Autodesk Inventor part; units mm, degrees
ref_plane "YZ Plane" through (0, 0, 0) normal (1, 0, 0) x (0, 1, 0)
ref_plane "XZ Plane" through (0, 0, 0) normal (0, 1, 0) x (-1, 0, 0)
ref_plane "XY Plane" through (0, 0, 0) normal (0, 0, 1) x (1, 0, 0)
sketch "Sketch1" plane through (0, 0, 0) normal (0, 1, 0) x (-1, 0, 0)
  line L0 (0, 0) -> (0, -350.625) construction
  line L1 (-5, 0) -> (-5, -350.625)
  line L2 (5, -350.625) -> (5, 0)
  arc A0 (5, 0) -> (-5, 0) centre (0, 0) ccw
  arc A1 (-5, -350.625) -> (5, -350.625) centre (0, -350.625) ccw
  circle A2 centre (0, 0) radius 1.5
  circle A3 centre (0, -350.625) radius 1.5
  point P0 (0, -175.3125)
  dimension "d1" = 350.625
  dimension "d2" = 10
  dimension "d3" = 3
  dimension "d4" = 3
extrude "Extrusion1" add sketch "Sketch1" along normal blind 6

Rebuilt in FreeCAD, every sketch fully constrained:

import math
import FreeCAD as App
import Part
import Sketcher

V = App.Vector

doc = App.newDocument("Part")
body = doc.addObject("PartDesign::Body", "Body")

# Sketch on XZ plane
sketch1 = doc.addObject("Sketcher::SketchObject", "Sketch")
body.addObject(sketch1)
sketch1.AttachmentSupport = (doc.XZ_Plane, [""])
sketch1.MapMode = "FlatFace"
sketch1.addGeometry([
    Part.ArcOfCircle(Part.Circle(V(0, 0, 0), V(0, 0, 1), 5), math.radians(0), math.radians(180)),  # 0
    Part.LineSegment(V(5, 0, 0), V(5, -350.625, 0)),  # 1
    Part.ArcOfCircle(Part.Circle(V(0, -350.625, 0), V(0, 0, 1), 5), math.radians(180), math.radians(360)),  # 2
    Part.LineSegment(V(-5, -350.625, 0), V(-5, 0, 0)),  # 3
    Part.Circle(V(0, -350.625, 0), V(0, 0, 1), 1.5),  # 4
    Part.Circle(V(0, 0, 0), V(0, 0, 1), 1.5),  # 5
], False)
sketch1.addConstraint([
    Sketcher.Constraint("Tangent", 0, 1, 1, 1),
    Sketcher.Constraint("Tangent", 1, 2, 2, 2),
    Sketcher.Constraint("Tangent", 2, 1, 3, 1),
    Sketcher.Constraint("Tangent", 3, 2, 0, 2),
    Sketcher.Constraint("Vertical", 1),
    Sketcher.Constraint("Vertical", 3),
    Sketcher.Constraint("Coincident", 0, 3, -1, 1),
    Sketcher.Constraint("Coincident", 5, 3, -1, 1),
    Sketcher.Constraint("Coincident", 4, 3, 2, 3),
    Sketcher.Constraint("Equal", 4, 5),
    Sketcher.Constraint("Diameter", 4, 3.0),
    Sketcher.Constraint("Radius", 0, 5.0),
    Sketcher.Constraint("DistanceY", 1, 2, 1, 1, 350.625),
])
pad1 = doc.addObject("PartDesign::Pad", "Pad")
body.addObject(pad1)
pad1.Profile = sketch1
pad1.Length = 6
pad1.Reversed = True

doc.recompute()
